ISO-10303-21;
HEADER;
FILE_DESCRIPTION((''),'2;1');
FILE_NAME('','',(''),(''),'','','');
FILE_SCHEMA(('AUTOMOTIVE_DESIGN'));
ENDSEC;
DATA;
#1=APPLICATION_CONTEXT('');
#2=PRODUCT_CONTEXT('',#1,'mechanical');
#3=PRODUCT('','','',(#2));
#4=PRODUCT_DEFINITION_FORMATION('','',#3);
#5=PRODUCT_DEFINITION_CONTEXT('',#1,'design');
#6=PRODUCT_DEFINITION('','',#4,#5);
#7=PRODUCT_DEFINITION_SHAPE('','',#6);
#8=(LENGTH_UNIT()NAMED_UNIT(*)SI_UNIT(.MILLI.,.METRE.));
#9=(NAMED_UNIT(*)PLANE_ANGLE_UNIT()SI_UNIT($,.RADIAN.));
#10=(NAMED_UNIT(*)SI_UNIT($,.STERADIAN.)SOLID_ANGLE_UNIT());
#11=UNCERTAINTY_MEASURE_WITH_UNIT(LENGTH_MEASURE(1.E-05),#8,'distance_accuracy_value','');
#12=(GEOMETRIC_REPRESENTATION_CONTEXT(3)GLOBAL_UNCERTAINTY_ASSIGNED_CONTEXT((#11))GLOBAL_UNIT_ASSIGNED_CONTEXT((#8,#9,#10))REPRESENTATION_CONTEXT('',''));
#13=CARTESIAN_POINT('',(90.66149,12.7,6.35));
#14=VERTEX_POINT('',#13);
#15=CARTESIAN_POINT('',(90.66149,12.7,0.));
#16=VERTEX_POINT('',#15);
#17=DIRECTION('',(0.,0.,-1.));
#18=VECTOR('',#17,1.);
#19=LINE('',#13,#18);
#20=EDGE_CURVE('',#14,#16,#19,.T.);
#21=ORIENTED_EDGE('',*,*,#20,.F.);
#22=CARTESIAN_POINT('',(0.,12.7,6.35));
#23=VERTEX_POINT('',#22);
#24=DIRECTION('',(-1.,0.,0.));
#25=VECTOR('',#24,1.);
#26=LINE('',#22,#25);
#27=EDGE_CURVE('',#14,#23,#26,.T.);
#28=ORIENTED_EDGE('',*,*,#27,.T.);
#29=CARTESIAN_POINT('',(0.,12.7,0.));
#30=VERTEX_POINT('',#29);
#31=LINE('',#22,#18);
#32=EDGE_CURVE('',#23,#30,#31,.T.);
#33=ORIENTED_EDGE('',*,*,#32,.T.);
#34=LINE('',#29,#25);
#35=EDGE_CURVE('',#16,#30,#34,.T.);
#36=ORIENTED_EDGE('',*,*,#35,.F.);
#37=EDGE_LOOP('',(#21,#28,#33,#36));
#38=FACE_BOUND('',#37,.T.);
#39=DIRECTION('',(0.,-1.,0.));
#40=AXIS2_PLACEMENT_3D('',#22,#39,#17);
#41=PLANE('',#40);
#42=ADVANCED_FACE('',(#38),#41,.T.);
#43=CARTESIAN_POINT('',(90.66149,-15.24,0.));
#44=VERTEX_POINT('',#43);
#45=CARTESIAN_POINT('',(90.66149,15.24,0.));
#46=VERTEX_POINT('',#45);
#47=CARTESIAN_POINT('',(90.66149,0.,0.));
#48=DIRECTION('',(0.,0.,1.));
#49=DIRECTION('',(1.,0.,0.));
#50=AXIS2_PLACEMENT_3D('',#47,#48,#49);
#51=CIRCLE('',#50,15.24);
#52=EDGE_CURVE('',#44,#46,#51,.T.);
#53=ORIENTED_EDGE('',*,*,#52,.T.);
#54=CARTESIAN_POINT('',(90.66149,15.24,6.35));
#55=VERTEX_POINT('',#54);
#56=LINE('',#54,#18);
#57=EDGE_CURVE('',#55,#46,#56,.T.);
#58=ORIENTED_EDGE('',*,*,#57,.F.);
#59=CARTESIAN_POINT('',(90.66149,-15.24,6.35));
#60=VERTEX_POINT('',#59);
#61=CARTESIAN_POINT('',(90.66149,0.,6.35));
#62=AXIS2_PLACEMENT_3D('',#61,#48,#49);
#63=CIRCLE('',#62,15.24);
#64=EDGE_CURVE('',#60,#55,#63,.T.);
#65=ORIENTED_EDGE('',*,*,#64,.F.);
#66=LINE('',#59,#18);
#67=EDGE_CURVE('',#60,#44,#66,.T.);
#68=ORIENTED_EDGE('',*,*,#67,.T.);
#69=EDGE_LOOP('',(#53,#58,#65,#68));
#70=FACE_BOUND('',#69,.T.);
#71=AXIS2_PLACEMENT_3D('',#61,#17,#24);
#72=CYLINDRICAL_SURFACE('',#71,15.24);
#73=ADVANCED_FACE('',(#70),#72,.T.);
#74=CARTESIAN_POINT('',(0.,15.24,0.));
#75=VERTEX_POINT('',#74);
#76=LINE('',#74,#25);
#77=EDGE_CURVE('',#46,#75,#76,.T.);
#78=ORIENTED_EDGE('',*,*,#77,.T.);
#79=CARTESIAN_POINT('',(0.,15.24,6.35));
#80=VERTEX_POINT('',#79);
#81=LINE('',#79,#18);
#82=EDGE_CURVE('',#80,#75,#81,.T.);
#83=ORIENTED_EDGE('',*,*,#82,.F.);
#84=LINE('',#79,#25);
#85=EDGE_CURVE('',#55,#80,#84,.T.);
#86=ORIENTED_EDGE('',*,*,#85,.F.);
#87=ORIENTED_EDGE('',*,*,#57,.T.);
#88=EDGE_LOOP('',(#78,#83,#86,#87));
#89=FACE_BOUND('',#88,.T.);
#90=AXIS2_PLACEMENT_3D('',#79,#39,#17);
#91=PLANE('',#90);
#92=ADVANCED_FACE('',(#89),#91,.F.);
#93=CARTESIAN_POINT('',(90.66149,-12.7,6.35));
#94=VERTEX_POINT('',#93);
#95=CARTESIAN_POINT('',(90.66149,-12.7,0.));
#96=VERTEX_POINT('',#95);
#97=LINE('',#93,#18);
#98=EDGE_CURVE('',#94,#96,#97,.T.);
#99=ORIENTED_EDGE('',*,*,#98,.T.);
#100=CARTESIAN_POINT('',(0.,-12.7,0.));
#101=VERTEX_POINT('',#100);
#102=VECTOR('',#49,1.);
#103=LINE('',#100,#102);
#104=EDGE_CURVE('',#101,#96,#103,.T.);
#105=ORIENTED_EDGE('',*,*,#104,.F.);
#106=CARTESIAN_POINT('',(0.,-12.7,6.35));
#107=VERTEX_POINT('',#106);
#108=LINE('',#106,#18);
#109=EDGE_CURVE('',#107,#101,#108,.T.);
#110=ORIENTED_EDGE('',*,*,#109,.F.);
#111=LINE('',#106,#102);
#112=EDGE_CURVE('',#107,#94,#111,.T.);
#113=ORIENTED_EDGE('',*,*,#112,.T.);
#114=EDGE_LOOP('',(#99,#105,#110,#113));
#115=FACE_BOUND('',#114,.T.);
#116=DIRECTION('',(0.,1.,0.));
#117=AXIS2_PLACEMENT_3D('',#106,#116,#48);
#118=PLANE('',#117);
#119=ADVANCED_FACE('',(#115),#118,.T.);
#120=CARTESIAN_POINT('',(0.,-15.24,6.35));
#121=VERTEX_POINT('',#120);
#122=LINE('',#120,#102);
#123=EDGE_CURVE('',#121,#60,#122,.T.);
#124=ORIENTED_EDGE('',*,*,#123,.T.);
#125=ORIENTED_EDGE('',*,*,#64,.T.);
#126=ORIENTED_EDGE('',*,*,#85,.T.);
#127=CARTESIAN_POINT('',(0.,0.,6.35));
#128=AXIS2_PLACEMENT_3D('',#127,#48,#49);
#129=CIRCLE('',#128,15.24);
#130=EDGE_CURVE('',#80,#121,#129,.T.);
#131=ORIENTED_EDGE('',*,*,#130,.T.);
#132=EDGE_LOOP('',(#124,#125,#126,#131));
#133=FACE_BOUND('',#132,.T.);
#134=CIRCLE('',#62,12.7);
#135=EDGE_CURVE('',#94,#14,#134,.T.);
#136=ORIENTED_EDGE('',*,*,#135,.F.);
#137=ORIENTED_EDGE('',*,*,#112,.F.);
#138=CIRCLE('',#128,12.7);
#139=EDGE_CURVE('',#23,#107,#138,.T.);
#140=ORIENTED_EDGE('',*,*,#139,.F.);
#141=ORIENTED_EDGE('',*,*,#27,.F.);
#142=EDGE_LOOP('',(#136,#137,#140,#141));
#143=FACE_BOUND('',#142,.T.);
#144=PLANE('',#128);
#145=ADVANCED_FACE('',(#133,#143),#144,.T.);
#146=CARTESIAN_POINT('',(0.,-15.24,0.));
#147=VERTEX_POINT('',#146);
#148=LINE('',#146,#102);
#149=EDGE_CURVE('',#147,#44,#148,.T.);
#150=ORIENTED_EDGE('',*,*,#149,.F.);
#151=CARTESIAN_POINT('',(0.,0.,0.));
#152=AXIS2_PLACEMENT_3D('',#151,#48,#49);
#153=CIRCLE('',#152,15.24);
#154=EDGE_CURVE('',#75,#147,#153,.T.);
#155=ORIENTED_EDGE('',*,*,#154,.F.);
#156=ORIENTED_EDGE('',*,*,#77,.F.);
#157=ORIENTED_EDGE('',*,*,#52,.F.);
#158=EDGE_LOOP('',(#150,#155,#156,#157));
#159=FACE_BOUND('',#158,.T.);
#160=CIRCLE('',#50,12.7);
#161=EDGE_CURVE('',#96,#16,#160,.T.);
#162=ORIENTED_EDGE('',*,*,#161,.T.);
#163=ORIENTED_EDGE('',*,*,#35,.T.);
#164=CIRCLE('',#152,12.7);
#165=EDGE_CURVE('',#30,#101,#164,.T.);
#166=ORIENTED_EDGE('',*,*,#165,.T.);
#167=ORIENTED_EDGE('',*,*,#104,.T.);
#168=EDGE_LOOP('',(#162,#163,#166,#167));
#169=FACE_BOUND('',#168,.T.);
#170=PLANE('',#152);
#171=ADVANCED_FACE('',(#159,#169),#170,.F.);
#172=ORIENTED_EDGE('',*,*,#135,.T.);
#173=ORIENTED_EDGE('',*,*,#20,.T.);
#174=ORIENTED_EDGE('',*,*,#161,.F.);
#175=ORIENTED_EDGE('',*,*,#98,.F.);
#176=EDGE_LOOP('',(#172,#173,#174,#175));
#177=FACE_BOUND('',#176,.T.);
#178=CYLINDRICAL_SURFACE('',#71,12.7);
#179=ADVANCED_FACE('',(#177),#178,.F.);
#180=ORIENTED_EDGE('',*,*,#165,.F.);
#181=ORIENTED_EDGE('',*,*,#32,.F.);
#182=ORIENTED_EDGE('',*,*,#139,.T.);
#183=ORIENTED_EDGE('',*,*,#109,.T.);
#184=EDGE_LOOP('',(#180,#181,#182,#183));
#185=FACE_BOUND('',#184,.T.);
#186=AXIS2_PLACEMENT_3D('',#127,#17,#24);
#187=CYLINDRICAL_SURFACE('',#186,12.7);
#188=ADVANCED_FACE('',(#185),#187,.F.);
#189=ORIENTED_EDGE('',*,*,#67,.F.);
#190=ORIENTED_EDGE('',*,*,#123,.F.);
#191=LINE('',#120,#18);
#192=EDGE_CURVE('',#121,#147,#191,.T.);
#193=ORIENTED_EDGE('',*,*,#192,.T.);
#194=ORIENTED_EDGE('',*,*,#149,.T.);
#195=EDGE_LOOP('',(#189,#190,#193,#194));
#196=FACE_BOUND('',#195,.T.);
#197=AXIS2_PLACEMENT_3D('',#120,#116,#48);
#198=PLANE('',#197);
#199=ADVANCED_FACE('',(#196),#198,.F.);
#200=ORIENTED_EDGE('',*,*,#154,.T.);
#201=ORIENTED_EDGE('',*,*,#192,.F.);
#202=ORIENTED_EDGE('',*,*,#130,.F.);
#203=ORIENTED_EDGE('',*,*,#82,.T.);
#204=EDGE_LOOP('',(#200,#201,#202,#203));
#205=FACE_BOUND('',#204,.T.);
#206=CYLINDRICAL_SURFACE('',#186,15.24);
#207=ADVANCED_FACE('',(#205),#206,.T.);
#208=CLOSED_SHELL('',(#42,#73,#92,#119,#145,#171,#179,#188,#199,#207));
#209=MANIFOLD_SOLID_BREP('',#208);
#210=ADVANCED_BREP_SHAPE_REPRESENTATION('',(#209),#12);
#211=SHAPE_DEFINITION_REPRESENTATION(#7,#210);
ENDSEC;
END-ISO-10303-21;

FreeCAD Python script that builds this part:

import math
import FreeCAD as App
import Part
import Sketcher
from FreeCAD import Vector
Q = App.Units.Quantity

doc = App.newDocument("Part")
params = doc.addObject("Spreadsheet::Sheet", "Params")
for row, (alias, value) in enumerate([
    ("sketch1_radius", "0.6 in"),
    ("sketch1_radius2", "0.5 in"),
    ("pad1_length", "0.25 in"),
], start=1):
    params.set(f"A{row}", alias)
    params.set(f"B{row}", "=" + value)
    params.setAlias(f"B{row}", alias)

body = doc.addObject("PartDesign::Body", "Body")

# Sketch on XY plane
sketch1 = body.newObject("Sketcher::SketchObject", "Sketch")
sketch1.AttachmentSupport = (doc.getObject("XY_Plane"), [""])
sketch1.MapMode = "FlatFace"
sketch1.addGeometry(Part.LineSegment(Vector(90.66149, 15.24, 0), Vector(0, 15.24, 0)), False)
sketch1.addGeometry(Part.ArcOfCircle(Part.Circle(Vector(0, 0, 0), Vector(0, 0, 1), 15.24), math.radians(90), math.radians(270)), False)
sketch1.addGeometry(Part.LineSegment(Vector(0, -15.24, 0), Vector(90.66149, -15.24, 0)), False)
sketch1.addGeometry(Part.ArcOfCircle(Part.Circle(Vector(90.66149, 0, 0), Vector(0, 0, 1), 15.24), math.radians(-90), math.radians(90)), False)
sketch1.addGeometry(Part.LineSegment(Vector(0, 12.7, 0), Vector(90.66149, 12.7, 0)), False)
sketch1.addGeometry(Part.ArcOfCircle(Part.Circle(Vector(90.66149, 0, 0), Vector(0, 0, 1), 12.7), math.radians(-90), math.radians(90)), False)
sketch1.addGeometry(Part.LineSegment(Vector(90.66149, -12.7, 0), Vector(0, -12.7, 0)), False)
sketch1.addGeometry(Part.ArcOfCircle(Part.Circle(Vector(0, 0, 0), Vector(0, 0, 1), 12.7), math.radians(90), math.radians(270)), False)
sketch1.addConstraint(Sketcher.Constraint("Tangent", 0, 2, 1, 1))
sketch1.addConstraint(Sketcher.Constraint("Tangent", 1, 2, 2, 1))
sketch1.addConstraint(Sketcher.Constraint("Tangent", 2, 2, 3, 1))
sketch1.addConstraint(Sketcher.Constraint("Tangent", 3, 2, 0, 1))
sketch1.addConstraint(Sketcher.Constraint("Tangent", 4, 2, 5, 2))
sketch1.addConstraint(Sketcher.Constraint("Tangent", 5, 1, 6, 1))
sketch1.addConstraint(Sketcher.Constraint("Tangent", 6, 2, 7, 2))
sketch1.addConstraint(Sketcher.Constraint("Tangent", 7, 1, 4, 1))
sketch1.addConstraint(Sketcher.Constraint("Horizontal", 0))
sketch1.addConstraint(Sketcher.Constraint("Horizontal", 2))
sketch1.addConstraint(Sketcher.Constraint("Horizontal", 4))
sketch1.addConstraint(Sketcher.Constraint("Horizontal", 6))
sketch1.addConstraint(Sketcher.Constraint("Coincident", 1, 3, -1, 1))
sketch1.addConstraint(Sketcher.Constraint("Coincident", 7, 3, -1, 1))
sketch1.addConstraint(Sketcher.Constraint("Vertical", 5, 3, 2, 2))
sketch1.addConstraint(Sketcher.Constraint("Radius", 1, Q("0.6 in")))
sketch1.addConstraint(Sketcher.Constraint("Radius", 5, Q("0.5 in")))
sketch1.addConstraint(Sketcher.Constraint("DistanceX", 0, 2, 0, 1, Q("90.66149 mm")))
sketch1.setExpression("Constraints[15]", "Params.sketch1_radius")
sketch1.setExpression("Constraints[16]", "Params.sketch1_radius2")
pad1 = body.newObject("PartDesign::Pad", "Pad")
pad1.Profile = sketch1
pad1.setExpression("Length", "Params.pad1_length")

doc.recompute()
